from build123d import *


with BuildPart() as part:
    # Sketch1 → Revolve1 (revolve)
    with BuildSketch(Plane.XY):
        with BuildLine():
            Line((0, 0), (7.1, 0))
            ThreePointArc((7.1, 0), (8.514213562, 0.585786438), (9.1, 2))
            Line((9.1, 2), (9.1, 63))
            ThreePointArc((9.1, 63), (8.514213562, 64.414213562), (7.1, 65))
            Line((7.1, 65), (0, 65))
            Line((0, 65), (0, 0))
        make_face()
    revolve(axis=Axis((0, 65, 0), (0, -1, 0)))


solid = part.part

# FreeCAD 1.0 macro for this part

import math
import FreeCAD as App
import Part
import Sketcher

V = App.Vector
Q = App.Units.Quantity

doc = App.newDocument("Part")
body = doc.addObject("PartDesign::Body", "Body")

sketch1 = doc.addObject("Sketcher::SketchObject", "Sketch")
body.addObject(sketch1)
sketch1.AttachmentSupport = (doc.XY_Plane, [""])
sketch1.MapMode = "FlatFace"
sketch1.addGeometry(Part.LineSegment(V(0, 0, 0), V(7.1, 0, 0)), False)
sketch1.addGeometry(Part.ArcOfCircle(Part.Circle(V(7.1, 2, 0), V(0, 0, 1), 2), math.radians(-90), math.radians(0)), False)
sketch1.addGeometry(Part.LineSegment(V(9.1, 2, 0), V(9.1, 63, 0)), False)
sketch1.addGeometry(Part.ArcOfCircle(Part.Circle(V(7.1, 63, 0), V(0, 0, 1), 2), math.radians(0), math.radians(90)), False)
sketch1.addGeometry(Part.LineSegment(V(7.1, 65, 0), V(0, 65, 0)), False)
sketch1.addGeometry(Part.LineSegment(V(0, 65, 0), V(0, 0, 0)), False)
sketch1.addConstraint(Sketcher.Constraint("Tangent", 0, 2, 1, 1))
sketch1.addConstraint(Sketcher.Constraint("Tangent", 1, 2, 2, 1))
sketch1.addConstraint(Sketcher.Constraint("Tangent", 2, 2, 3, 1))
sketch1.addConstraint(Sketcher.Constraint("Tangent", 3, 2, 4, 1))
sketch1.addConstraint(Sketcher.Constraint("Coincident", 4, 2, 5, 1))
sketch1.addConstraint(Sketcher.Constraint("Coincident", 5, 2, 0, 1))
sketch1.addConstraint(Sketcher.Constraint("Horizontal", 0))
sketch1.addConstraint(Sketcher.Constraint("Vertical", 2))
sketch1.addConstraint(Sketcher.Constraint("Horizontal", 4))
sketch1.addConstraint(Sketcher.Constraint("Vertical", 5))
sketch1.addConstraint(Sketcher.Constraint("Coincident", 5, 2, -1, 1))
sketch1.addConstraint(Sketcher.Constraint("Equal", 1, 3))
sketch1.addConstraint(Sketcher.Constraint("Radius", 1, Q("2 mm")))
sketch1.addConstraint(Sketcher.Constraint("DistanceY", 2, 1, 2, 2, Q("61 mm")))
sketch1.addConstraint(Sketcher.Constraint("DistanceX", 0, 1, 0, 2, Q("7.1 mm")))
revolution = doc.addObject("PartDesign::Revolution", "Revolution")
body.addObject(revolution)
revolution.Profile = sketch1
revolution.ReferenceAxis = (sketch1, ["V_Axis"])
revolution.Angle = 360

doc.recompute()
